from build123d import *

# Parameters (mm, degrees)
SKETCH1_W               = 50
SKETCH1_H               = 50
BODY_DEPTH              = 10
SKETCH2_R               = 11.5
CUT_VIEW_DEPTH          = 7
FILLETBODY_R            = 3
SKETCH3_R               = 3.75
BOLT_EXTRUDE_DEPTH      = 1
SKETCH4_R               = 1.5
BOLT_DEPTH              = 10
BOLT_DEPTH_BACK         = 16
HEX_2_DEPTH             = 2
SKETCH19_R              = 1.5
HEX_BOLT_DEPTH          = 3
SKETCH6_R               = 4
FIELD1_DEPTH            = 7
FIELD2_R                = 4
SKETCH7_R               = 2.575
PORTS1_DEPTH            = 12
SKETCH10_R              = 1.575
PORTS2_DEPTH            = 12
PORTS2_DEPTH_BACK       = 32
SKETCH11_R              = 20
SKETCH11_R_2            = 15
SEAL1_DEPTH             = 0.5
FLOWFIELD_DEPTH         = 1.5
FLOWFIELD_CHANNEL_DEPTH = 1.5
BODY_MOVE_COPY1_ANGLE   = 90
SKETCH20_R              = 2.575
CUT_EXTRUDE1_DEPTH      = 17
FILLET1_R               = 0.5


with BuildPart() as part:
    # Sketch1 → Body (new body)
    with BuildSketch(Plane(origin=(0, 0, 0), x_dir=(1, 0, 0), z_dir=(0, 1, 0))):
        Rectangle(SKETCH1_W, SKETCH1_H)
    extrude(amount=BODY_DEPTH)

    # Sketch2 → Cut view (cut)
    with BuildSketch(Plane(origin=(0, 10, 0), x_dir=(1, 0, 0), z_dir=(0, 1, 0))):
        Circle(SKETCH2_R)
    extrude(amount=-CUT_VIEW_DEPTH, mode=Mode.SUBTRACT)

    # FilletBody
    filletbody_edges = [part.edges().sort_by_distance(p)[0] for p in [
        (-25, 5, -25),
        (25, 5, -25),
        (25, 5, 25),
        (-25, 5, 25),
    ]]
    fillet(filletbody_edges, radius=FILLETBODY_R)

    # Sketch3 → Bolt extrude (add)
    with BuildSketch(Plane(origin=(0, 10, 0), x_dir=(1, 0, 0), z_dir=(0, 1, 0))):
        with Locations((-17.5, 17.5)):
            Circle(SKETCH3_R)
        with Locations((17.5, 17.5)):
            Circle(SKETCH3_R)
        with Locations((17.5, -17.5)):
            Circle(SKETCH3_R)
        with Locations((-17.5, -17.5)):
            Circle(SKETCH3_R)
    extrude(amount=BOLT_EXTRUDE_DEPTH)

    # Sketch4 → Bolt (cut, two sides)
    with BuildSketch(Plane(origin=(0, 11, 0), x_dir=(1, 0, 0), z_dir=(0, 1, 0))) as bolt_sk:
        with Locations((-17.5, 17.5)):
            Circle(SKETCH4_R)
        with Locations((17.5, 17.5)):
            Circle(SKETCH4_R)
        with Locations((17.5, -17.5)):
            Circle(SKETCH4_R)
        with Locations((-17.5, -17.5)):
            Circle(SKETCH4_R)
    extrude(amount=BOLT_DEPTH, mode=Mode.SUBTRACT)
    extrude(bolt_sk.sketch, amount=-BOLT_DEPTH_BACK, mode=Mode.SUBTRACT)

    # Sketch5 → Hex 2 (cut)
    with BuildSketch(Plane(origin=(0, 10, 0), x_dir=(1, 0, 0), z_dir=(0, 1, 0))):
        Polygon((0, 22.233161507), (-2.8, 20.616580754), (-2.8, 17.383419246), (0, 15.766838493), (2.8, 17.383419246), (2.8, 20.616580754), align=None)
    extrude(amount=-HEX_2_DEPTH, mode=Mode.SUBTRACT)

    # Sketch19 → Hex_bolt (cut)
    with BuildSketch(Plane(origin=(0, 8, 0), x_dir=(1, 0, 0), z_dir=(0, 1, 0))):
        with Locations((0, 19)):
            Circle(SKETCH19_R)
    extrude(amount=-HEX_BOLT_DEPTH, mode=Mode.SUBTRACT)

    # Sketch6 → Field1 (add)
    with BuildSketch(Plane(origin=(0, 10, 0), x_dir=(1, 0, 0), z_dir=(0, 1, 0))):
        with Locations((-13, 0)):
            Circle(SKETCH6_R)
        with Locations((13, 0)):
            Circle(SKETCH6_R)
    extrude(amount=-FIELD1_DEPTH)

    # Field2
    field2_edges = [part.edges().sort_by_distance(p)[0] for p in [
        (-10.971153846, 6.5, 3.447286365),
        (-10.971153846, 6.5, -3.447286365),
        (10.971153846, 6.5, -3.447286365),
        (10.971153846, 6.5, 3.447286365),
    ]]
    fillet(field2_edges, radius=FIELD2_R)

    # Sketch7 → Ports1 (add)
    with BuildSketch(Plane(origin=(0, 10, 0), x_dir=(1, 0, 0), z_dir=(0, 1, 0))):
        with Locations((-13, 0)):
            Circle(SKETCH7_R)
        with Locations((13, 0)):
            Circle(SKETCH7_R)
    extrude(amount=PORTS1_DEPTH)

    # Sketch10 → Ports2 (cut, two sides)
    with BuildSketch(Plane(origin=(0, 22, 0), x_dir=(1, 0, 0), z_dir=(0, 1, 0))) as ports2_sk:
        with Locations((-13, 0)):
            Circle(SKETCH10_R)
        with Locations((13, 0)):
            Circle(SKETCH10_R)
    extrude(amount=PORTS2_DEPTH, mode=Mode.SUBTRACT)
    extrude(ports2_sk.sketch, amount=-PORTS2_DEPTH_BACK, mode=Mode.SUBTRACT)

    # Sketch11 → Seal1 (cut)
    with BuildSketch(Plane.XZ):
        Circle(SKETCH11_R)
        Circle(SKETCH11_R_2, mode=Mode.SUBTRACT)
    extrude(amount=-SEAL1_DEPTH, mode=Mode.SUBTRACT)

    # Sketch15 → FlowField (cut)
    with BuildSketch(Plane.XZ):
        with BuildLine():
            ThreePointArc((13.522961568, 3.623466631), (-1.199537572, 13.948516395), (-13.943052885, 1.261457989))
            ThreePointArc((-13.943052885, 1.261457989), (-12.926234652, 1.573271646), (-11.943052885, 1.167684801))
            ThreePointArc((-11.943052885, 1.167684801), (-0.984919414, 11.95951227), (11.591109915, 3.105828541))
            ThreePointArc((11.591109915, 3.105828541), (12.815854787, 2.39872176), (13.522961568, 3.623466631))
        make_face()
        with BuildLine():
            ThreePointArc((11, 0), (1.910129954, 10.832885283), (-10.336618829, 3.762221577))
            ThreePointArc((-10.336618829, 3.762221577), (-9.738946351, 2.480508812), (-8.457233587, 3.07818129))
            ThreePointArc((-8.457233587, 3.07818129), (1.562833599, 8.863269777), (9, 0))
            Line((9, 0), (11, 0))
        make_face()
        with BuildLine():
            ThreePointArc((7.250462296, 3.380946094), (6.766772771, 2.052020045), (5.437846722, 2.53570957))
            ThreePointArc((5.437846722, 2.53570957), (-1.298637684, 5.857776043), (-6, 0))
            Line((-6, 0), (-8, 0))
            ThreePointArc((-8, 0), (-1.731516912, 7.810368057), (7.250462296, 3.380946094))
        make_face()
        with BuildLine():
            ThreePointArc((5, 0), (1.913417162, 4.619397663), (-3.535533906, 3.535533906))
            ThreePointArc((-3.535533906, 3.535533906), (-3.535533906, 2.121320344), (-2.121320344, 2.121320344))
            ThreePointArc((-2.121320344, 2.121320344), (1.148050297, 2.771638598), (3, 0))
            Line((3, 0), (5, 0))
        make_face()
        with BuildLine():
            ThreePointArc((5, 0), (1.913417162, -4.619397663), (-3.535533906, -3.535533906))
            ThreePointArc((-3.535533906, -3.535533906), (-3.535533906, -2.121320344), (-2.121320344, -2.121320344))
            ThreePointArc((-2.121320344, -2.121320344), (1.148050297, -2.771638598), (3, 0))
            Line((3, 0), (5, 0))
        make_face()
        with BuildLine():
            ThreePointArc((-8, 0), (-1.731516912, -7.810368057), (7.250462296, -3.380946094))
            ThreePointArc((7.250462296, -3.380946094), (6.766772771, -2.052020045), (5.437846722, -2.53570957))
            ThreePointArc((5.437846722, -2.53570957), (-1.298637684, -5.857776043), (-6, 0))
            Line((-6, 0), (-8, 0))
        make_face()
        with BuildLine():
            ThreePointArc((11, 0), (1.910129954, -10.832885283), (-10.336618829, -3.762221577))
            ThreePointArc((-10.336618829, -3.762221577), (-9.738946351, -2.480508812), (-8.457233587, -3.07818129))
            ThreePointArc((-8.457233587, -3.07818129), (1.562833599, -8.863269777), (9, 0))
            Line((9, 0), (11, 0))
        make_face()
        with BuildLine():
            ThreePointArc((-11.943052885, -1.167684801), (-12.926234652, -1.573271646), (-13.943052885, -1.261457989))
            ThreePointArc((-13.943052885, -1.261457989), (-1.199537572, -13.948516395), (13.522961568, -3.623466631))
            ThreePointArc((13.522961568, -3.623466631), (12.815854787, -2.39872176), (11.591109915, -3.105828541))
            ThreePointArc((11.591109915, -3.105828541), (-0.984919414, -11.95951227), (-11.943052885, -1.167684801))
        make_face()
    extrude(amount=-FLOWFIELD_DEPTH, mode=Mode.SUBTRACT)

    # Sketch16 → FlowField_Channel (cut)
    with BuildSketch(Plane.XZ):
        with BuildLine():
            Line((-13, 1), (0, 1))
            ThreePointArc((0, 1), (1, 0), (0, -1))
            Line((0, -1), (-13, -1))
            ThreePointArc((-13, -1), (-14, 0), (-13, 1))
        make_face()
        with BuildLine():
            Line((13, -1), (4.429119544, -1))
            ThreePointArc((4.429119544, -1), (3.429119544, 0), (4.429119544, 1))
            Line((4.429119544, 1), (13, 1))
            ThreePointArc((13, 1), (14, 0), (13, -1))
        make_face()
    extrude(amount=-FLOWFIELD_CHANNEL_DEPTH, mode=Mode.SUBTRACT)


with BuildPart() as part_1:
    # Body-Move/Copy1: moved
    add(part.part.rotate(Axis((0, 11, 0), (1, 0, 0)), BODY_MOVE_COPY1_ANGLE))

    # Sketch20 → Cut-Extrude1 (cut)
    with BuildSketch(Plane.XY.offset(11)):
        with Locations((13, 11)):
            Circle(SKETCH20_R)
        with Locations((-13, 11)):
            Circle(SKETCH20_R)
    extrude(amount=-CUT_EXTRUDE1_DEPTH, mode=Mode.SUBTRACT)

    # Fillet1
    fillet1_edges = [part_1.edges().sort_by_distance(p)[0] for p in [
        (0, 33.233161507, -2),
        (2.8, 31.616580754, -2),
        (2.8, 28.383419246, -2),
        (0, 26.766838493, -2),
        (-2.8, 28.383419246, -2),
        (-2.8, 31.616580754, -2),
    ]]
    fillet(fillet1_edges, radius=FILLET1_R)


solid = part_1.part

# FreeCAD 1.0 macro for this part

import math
import FreeCAD as App
import Part
import Sketcher
Q = App.Units.Quantity


def edges_at(feature, points):
    """Names of the edges that pass closest to the given points."""
    edges = feature.Shape.Edges
    near = lambda p: min(range(len(edges)), key=lambda i: edges[i].distToShape(Part.Vertex(*p))[0])
    return sorted({f"Edge{near(p) + 1}" for p in points})

doc = App.newDocument("Part")
body = doc.addObject("PartDesign::Body", "Body")

sketch1 = doc.addObject("Sketcher::SketchObject", "Sketch")
body.addObject(sketch1)
sketch1.AttachmentSupport = (doc.XZ_Plane, [""])
sketch1.MapMode = "FlatFace"
sketch1.addGeometry(Part.LineSegment(App.Vector(-25, -25, 0), App.Vector(-25, 25, 0)), False)
sketch1.addGeometry(Part.LineSegment(App.Vector(-25, 25, 0), App.Vector(25, 25, 0)), False)
sketch1.addGeometry(Part.LineSegment(App.Vector(25, 25, 0), App.Vector(25, -25, 0)), False)
sketch1.addGeometry(Part.LineSegment(App.Vector(25, -25, 0), App.Vector(-25, -25, 0)), False)
sketch1.addConstraint(Sketcher.Constraint("Coincident", 0, 2, 1, 1))
sketch1.addConstraint(Sketcher.Constraint("Coincident", 1, 2, 2, 1))
sketch1.addConstraint(Sketcher.Constraint("Coincident", 2, 2, 3, 1))
sketch1.addConstraint(Sketcher.Constraint("Coincident", 3, 2, 0, 1))
sketch1.addConstraint(Sketcher.Constraint("Vertical", 0))
sketch1.addConstraint(Sketcher.Constraint("Horizontal", 1))
sketch1.addConstraint(Sketcher.Constraint("Vertical", 2))
sketch1.addConstraint(Sketcher.Constraint("Horizontal", 3))
sketch1.addConstraint(Sketcher.Constraint("Symmetric", 0, 2, 2, 2, -1, 1))
sketch1.addConstraint(Sketcher.Constraint("Equal", 3, 0))
sketch1.addConstraint(Sketcher.Constraint("DistanceX", 1, 1, 1, 2, 50.0))
pad1 = doc.addObject("PartDesign::Pad", "Pad")
body.addObject(pad1)
pad1.Profile = sketch1
pad1.Length = 10
pad1.Reversed = True

sketch2 = doc.addObject("Sketcher::SketchObject", "Sketch001")
body.addObject(sketch2)
sketch2.AttachmentSupport = (doc.XZ_Plane, [""])
sketch2.MapMode = "FlatFace"
sketch2.AttachmentOffset = App.Placement(App.Vector(0, 0, -10), App.Rotation())
sketch2.addGeometry(Part.Circle(App.Vector(0, 0, 0), App.Vector(0, 0, 1), 12), False)
sketch2.addConstraint(Sketcher.Constraint("Coincident", 0, 3, -1, 1))
sketch2.addConstraint(Sketcher.Constraint("Diameter", 0, 23.0))
pocket1 = doc.addObject("PartDesign::Pocket", "Pocket")
body.addObject(pocket1)
pocket1.Profile = sketch2
pocket1.Length = 7
pocket1.Reversed = True
doc.recompute()

fillet = doc.addObject("PartDesign::Fillet", "Fillet")
body.addObject(fillet)
fillet.Base = (pocket1, edges_at(pocket1, [
    (-25, 5, -25),
    (25, 5, -25),
    (25, 5, 25),
    (-25, 5, 25),
]))
fillet.Radius = 3

sketch3 = doc.addObject("Sketcher::SketchObject", "Sketch002")
body.addObject(sketch3)
sketch3.AttachmentSupport = (doc.XZ_Plane, [""])
sketch3.MapMode = "FlatFace"
sketch3.AttachmentOffset = App.Placement(App.Vector(0, 0, -10), App.Rotation())
sketch3.addGeometry(Part.Circle(App.Vector(-17.5, -17.5, 0), App.Vector(0, 0, 1), 3.8), False)
sketch3.addGeometry(Part.Circle(App.Vector(17.5, -17.5, 0), App.Vector(0, 0, 1), 3.8), False)
sketch3.addGeometry(Part.Circle(App.Vector(17.5, 17.5, 0), App.Vector(0, 0, 1), 3.8), False)
sketch3.addGeometry(Part.Circle(App.Vector(-17.5, 17.5, 0), App.Vector(0, 0, 1), 3.8), False)
sketch3.addConstraint(Sketcher.Constraint("Equal", 0, 1))
sketch3.addConstraint(Sketcher.Constraint("Equal", 1, 2))
sketch3.addConstraint(Sketcher.Constraint("Equal", 2, 3))
sketch3.addConstraint(Sketcher.Constraint("Symmetric", 0, 3, 2, 3, -1, 1))
sketch3.addConstraint(Sketcher.Constraint("Symmetric", 1, 3, 3, 3, -1, 1))
sketch3.addConstraint(Sketcher.Constraint("Symmetric", 0, 3, 1, 3, -2))
sketch3.addConstraint(Sketcher.Constraint("Diameter", 0, 7.5))
sketch3.addConstraint(Sketcher.Constraint("DistanceX", 0, 3, 1, 3, 35.0))
sketch3.addConstraint(Sketcher.Constraint("DistanceY", 1, 3, 2, 3, 35.0))
pad2 = doc.addObject("PartDesign::Pad", "Pad001")
body.addObject(pad2)
pad2.Profile = sketch3
pad2.Length = 1
pad2.Reversed = True

sketch4 = doc.addObject("Sketcher::SketchObject", "Sketch003")
body.addObject(sketch4)
sketch4.AttachmentSupport = (doc.XZ_Plane, [""])
sketch4.MapMode = "FlatFace"
sketch4.AttachmentOffset = App.Placement(App.Vector(0, 0, -11), App.Rotation())
sketch4.addGeometry(Part.Circle(App.Vector(-17.5, -17.5, 0), App.Vector(0, 0, 1), 1.5), False)
sketch4.addGeometry(Part.Circle(App.Vector(17.5, -17.5, 0), App.Vector(0, 0, 1), 1.5), False)
sketch4.addGeometry(Part.Circle(App.Vector(17.5, 17.5, 0), App.Vector(0, 0, 1), 1.5), False)
sketch4.addGeometry(Part.Circle(App.Vector(-17.5, 17.5, 0), App.Vector(0, 0, 1), 1.5), False)
sketch4.addConstraint(Sketcher.Constraint("Equal", 0, 1))
sketch4.addConstraint(Sketcher.Constraint("Equal", 1, 2))
sketch4.addConstraint(Sketcher.Constraint("Equal", 2, 3))
sketch4.addConstraint(Sketcher.Constraint("Symmetric", 0, 3, 2, 3, -1, 1))
sketch4.addConstraint(Sketcher.Constraint("Symmetric", 1, 3, 3, 3, -1, 1))
sketch4.addConstraint(Sketcher.Constraint("Symmetric", 0, 3, 1, 3, -2))
sketch4.addConstraint(Sketcher.Constraint("Diameter", 0, 3.0))
sketch4.addConstraint(Sketcher.Constraint("DistanceX", 0, 3, 1, 3, 35.0))
sketch4.addConstraint(Sketcher.Constraint("DistanceY", 1, 3, 2, 3, 35.0))
pocket2 = doc.addObject("PartDesign::Pocket", "Pocket001")
body.addObject(pocket2)
pocket2.Profile = sketch4
pocket2.Type = "ThroughAll"
pocket2.Midplane = True

sketch5 = doc.addObject("Sketcher::SketchObject", "Sketch004")
body.addObject(sketch5)
sketch5.AttachmentSupport = (doc.XZ_Plane, [""])
sketch5.MapMode = "FlatFace"
sketch5.AttachmentOffset = App.Placement(App.Vector(0, 0, -10), App.Rotation())
sketch5.addGeometry(Part.LineSegment(App.Vector(0, -22.2, 0), App.Vector(-2.8, -20.6, 0)), False)
sketch5.addGeometry(Part.LineSegment(App.Vector(-2.8, -20.6, 0), App.Vector(-2.8, -17.4, 0)), False)
sketch5.addGeometry(Part.LineSegment(App.Vector(-2.8, -17.4, 0), App.Vector(0, -15.8, 0)), False)
sketch5.addGeometry(Part.LineSegment(App.Vector(0, -15.8, 0), App.Vector(2.8, -17.4, 0)), False)
sketch5.addGeometry(Part.LineSegment(App.Vector(2.8, -17.4, 0), App.Vector(2.8, -20.6, 0)), False)
sketch5.addGeometry(Part.LineSegment(App.Vector(2.8, -20.6, 0), App.Vector(0, -22.2, 0)), False)
sketch5.addConstraint(Sketcher.Constraint("Coincident", 0, 2, 1, 1))
sketch5.addConstraint(Sketcher.Constraint("Coincident", 1, 2, 2, 1))
sketch5.addConstraint(Sketcher.Constraint("Coincident", 2, 2, 3, 1))
sketch5.addConstraint(Sketcher.Constraint("Coincident", 3, 2, 4, 1))
sketch5.addConstraint(Sketcher.Constraint("Coincident", 4, 2, 5, 1))
sketch5.addConstraint(Sketcher.Constraint("Coincident", 5, 2, 0, 1))
sketch5.addConstraint(Sketcher.Constraint("Vertical", 1))
sketch5.addConstraint(Sketcher.Constraint("Vertical", 4))
sketch5.addConstraint(Sketcher.Constraint("Symmetric", 1, 2, 3, 2, -2))
sketch5.addConstraint(Sketcher.Constraint("PointOnObject", 2, 2, -2))
sketch5.addConstraint(Sketcher.Constraint("PointOnObject", 5, 2, -2))
sketch5.addConstraint(Sketcher.Constraint("Parallel", 0, 3))
sketch5.addConstraint(Sketcher.Constraint("Parallel", 2, 5))
sketch5.addConstraint(Sketcher.Constraint("Angle", 0, Q("150 deg")))
sketch5.addConstraint(Sketcher.Constraint("DistanceX", 0, 2, -1, 1, 2.8))
sketch5.addConstraint(Sketcher.Constraint("DistanceY", 1, 1, 1, 2, 3.233162))
sketch5.addConstraint(Sketcher.Constraint("DistanceY", 0, 2, -1, 1, 20.616581))
pocket3 = doc.addObject("PartDesign::Pocket", "Pocket002")
body.addObject(pocket3)
pocket3.Profile = sketch5
pocket3.Length = 2
pocket3.Reversed = True

sketch6 = doc.addObject("Sketcher::SketchObject", "Sketch005")
body.addObject(sketch6)
sketch6.AttachmentSupport = (doc.XZ_Plane, [""])
sketch6.MapMode = "FlatFace"
sketch6.AttachmentOffset = App.Placement(App.Vector(0, 0, -8), App.Rotation())
sketch6.addGeometry(Part.Circle(App.Vector(0, -19, 0), App.Vector(0, 0, 1), 1.5), False)
sketch6.addConstraint(Sketcher.Constraint("PointOnObject", 0, 3, -2))
sketch6.addConstraint(Sketcher.Constraint("Diameter", 0, 3.0))
sketch6.addConstraint(Sketcher.Constraint("DistanceY", 0, 3, -1, 1, 19.0))
pocket4 = doc.addObject("PartDesign::Pocket", "Pocket003")
body.addObject(pocket4)
pocket4.Profile = sketch6
pocket4.Length = 3
pocket4.Reversed = True

sketch7 = doc.addObject("Sketcher::SketchObject", "Sketch006")
body.addObject(sketch7)
sketch7.AttachmentSupport = (doc.XZ_Plane, [""])
sketch7.MapMode = "FlatFace"
sketch7.AttachmentOffset = App.Placement(App.Vector(0, 0, -10), App.Rotation())
sketch7.addGeometry(Part.Circle(App.Vector(-13, 0, 0), App.Vector(0, 0, 1), 4), False)
sketch7.addGeometry(Part.Circle(App.Vector(13, 0, 0), App.Vector(0, 0, 1), 4), False)
sketch7.addConstraint(Sketcher.Constraint("Equal", 0, 1))
sketch7.addConstraint(Sketcher.Constraint("Symmetric", 0, 3, 1, 3, -1, 1))
sketch7.addConstraint(Sketcher.Constraint("PointOnObject", 0, 3, -1))
sketch7.addConstraint(Sketcher.Constraint("Diameter", 0, 8.0))
sketch7.addConstraint(Sketcher.Constraint("DistanceX", 0, 3, -1, 1, 13.0))
pad3 = doc.addObject("PartDesign::Pad", "Pad002")
body.addObject(pad3)
pad3.Profile = sketch7
pad3.Length = 7
doc.recompute()

fillet2 = doc.addObject("PartDesign::Fillet", "Fillet001")
body.addObject(fillet2)
fillet2.Base = (pad3, edges_at(pad3, [
    (-10.971, 6.5, 3.447),
    (-10.971, 6.5, -3.447),
    (10.971, 6.5, -3.447),
    (10.971, 6.5, 3.447),
]))
fillet2.Radius = 4

sketch8 = doc.addObject("Sketcher::SketchObject", "Sketch007")
body.addObject(sketch8)
sketch8.AttachmentSupport = (doc.XZ_Plane, [""])
sketch8.MapMode = "FlatFace"
sketch8.AttachmentOffset = App.Placement(App.Vector(0, 0, -10), App.Rotation())
sketch8.addGeometry(Part.Circle(App.Vector(-13, 0, 0), App.Vector(0, 0, 1), 2.6), False)
sketch8.addGeometry(Part.Circle(App.Vector(13, 0, 0), App.Vector(0, 0, 1), 2.6), False)
sketch8.addConstraint(Sketcher.Constraint("Equal", 0, 1))
sketch8.addConstraint(Sketcher.Constraint("Symmetric", 0, 3, 1, 3, -1, 1))
sketch8.addConstraint(Sketcher.Constraint("PointOnObject", 0, 3, -1))
sketch8.addConstraint(Sketcher.Constraint("Diameter", 0, 5.15))
sketch8.addConstraint(Sketcher.Constraint("DistanceX", 0, 3, -1, 1, 13.0))
pad4 = doc.addObject("PartDesign::Pad", "Pad003")
body.addObject(pad4)
pad4.Profile = sketch8
pad4.Length = 12
pad4.Reversed = True

sketch9 = doc.addObject("Sketcher::SketchObject", "Sketch008")
body.addObject(sketch9)
sketch9.AttachmentSupport = (doc.XZ_Plane, [""])
sketch9.MapMode = "FlatFace"
sketch9.AttachmentOffset = App.Placement(App.Vector(0, 0, -22), App.Rotation())
sketch9.addGeometry(Part.Circle(App.Vector(-13, 0, 0), App.Vector(0, 0, 1), 1.6), False)
sketch9.addGeometry(Part.Circle(App.Vector(13, 0, 0), App.Vector(0, 0, 1), 1.6), False)
sketch9.addConstraint(Sketcher.Constraint("Equal", 0, 1))
sketch9.addConstraint(Sketcher.Constraint("Symmetric", 0, 3, 1, 3, -1, 1))
sketch9.addConstraint(Sketcher.Constraint("PointOnObject", 0, 3, -1))
sketch9.addConstraint(Sketcher.Constraint("Diameter", 0, 3.15))
sketch9.addConstraint(Sketcher.Constraint("DistanceX", 0, 3, -1, 1, 13.0))
pocket5 = doc.addObject("PartDesign::Pocket", "Pocket004")
body.addObject(pocket5)
pocket5.Profile = sketch9
pocket5.Type = "ThroughAll"
pocket5.Midplane = True

sketch10 = doc.addObject("Sketcher::SketchObject", "Sketch009")
body.addObject(sketch10)
sketch10.AttachmentSupport = (doc.XZ_Plane, [""])
sketch10.MapMode = "FlatFace"
sketch10.addGeometry(Part.Circle(App.Vector(0, 0, 0), App.Vector(0, 0, 1), 20), False)
sketch10.addGeometry(Part.Circle(App.Vector(0, 0, 0), App.Vector(0, 0, 1), 15), False)
sketch10.addConstraint(Sketcher.Constraint("Coincident", 0, 3, -1, 1))
sketch10.addConstraint(Sketcher.Constraint("Coincident", 1, 3, -1, 1))
sketch10.addConstraint(Sketcher.Constraint("Diameter", 0, 40.0))
sketch10.addConstraint(Sketcher.Constraint("Diameter", 1, 30.0))
pocket6 = doc.addObject("PartDesign::Pocket", "Pocket005")
body.addObject(pocket6)
pocket6.Profile = sketch10
pocket6.Length = 0.5

sketch11 = doc.addObject("Sketcher::SketchObject", "Sketch010")
body.addObject(sketch11)
sketch11.AttachmentSupport = (doc.XZ_Plane, [""])
sketch11.MapMode = "FlatFace"
sketch11.addGeometry(Part.ArcOfCircle(Part.Circle(App.Vector(0, 0, 0), App.Vector(0, 0, 1), 14), math.radians(15), math.radians(175)), False)
sketch11.addGeometry(Part.ArcOfCircle(Part.Circle(App.Vector(-13, 0, 0), App.Vector(0, 0, 1), 1.6), math.radians(48), math.radians(127)), False)
sketch11.addGeometry(Part.ArcOfCircle(Part.Circle(App.Vector(0, 0, 0), App.Vector(0, 0, 1), 12), math.radians(15), math.radians(174)), False)
sketch11.addGeometry(Part.ArcOfCircle(Part.Circle(App.Vector(12.6, 3.4, 0), App.Vector(0, 0, 1), 1), math.radians(-165), math.radians(15)), False)
sketch11.addGeometry(Part.ArcOfCircle(Part.Circle(App.Vector(0, 0, 0), App.Vector(0, 0, 1), 11), math.radians(0), math.radians(160)), False)
sketch11.addGeometry(Part.ArcOfCircle(Part.Circle(App.Vector(-9.4, 3.4, 0), App.Vector(0, 0, 1), 1), math.radians(160), math.radians(340)), False)
sketch11.addGeometry(Part.ArcOfCircle(Part.Circle(App.Vector(0, 0, 0), App.Vector(0, 0, 1), 9), math.radians(0), math.radians(160)), False)
sketch11.addGeometry(Part.ArcOfCircle(Part.Circle(App.Vector(0, 0, 0), App.Vector(0, 0, 1), 9), math.radians(-160), math.radians(0)), False)
sketch11.addGeometry(Part.ArcOfCircle(Part.Circle(App.Vector(-9.4, -3.4, 0), App.Vector(0, 0, 1), 1), math.radians(20), math.radians(200)), False)
sketch11.addGeometry(Part.ArcOfCircle(Part.Circle(App.Vector(0, 0, 0), App.Vector(0, 0, 1), 11), math.radians(-160), math.radians(0)), False)
sketch11.addGeometry(Part.ArcOfCircle(Part.Circle(App.Vector(6.3, 3, 0), App.Vector(0, 0, 1), 1), math.radians(-155), math.radians(25)), False)
sketch11.addGeometry(Part.ArcOfCircle(Part.Circle(App.Vector(0, 0, 0), App.Vector(0, 0, 1), 8), math.radians(25), math.radians(180)), False)
sketch11.addGeometry(Part.ArcOfCircle(Part.Circle(App.Vector(0, 0, 0), App.Vector(0, 0, 1), 8), math.radians(180), math.radians(335)), False)
sketch11.addGeometry(Part.ArcOfCircle(Part.Circle(App.Vector(6.3, -3, 0), App.Vector(0, 0, 1), 1), math.radians(-25), math.radians(155)), False)
sketch11.addGeometry(Part.ArcOfCircle(Part.Circle(App.Vector(0, 0, 0), App.Vector(0, 0, 1), 6), math.radians(180), math.radians(335)), False)
sketch11.addGeometry(Part.ArcOfCircle(Part.Circle(App.Vector(0, 0, 0), App.Vector(0, 0, 1), 6), math.radians(25), math.radians(180)), False)
sketch11.addGeometry(Part.ArcOfCircle(Part.Circle(App.Vector(0, 0, 0), App.Vector(0, 0, 1), 5), math.radians(0), math.radians(135)), False)
sketch11.addGeometry(Part.ArcOfCircle(Part.Circle(App.Vector(-2.8, 2.8, 0), App.Vector(0, 0, 1), 1), math.radians(135), math.radians(315)), False)
sketch11.addGeometry(Part.ArcOfCircle(Part.Circle(App.Vector(0, 0, 0), App.Vector(0, 0, 1), 3), math.radians(0), math.radians(135)), False)
sketch11.addGeometry(Part.ArcOfCircle(Part.Circle(App.Vector(0, 0, 0), App.Vector(0, 0, 1), 3), math.radians(-135), math.radians(0)), False)
sketch11.addGeometry(Part.ArcOfCircle(Part.Circle(App.Vector(-2.8, -2.8, 0), App.Vector(0, 0, 1), 1), math.radians(45), math.radians(225)), False)
sketch11.addGeometry(Part.ArcOfCircle(Part.Circle(App.Vector(0, 0, 0), App.Vector(0, 0, 1), 5), math.radians(-135), math.radians(0)), False)
sketch11.addGeometry(Part.ArcOfCircle(Part.Circle(App.Vector(-13, 0, 0), App.Vector(0, 0, 1), 1.6), math.radians(-127), math.radians(-48)), False)
sketch11.addGeometry(Part.ArcOfCircle(Part.Circle(App.Vector(0, 0, 0), App.Vector(0, 0, 1), 14), math.radians(-175), math.radians(-15)), False)
sketch11.addGeometry(Part.ArcOfCircle(Part.Circle(App.Vector(12.6, -3.4, 0), App.Vector(0, 0, 1), 1), math.radians(-15), math.radians(165)), False)
sketch11.addGeometry(Part.ArcOfCircle(Part.Circle(App.Vector(0, 0, 0), App.Vector(0, 0, 1), 12), math.radians(-174), math.radians(-15)), False)
sketch11.addConstraint(Sketcher.Constraint("Coincident", 0, 2, 1, 2))
sketch11.addConstraint(Sketcher.Constraint("Coincident", 1, 1, 2, 2))
sketch11.addConstraint(Sketcher.Constraint("Tangent", 2, 1, 3, 1))
sketch11.addConstraint(Sketcher.Constraint("Tangent", 3, 2, 0, 1))
sketch11.addConstraint(Sketcher.Constraint("Tangent", 4, 2, 5, 1))
sketch11.addConstraint(Sketcher.Constraint("Tangent", 5, 2, 6, 2))
sketch11.addConstraint(Sketcher.Constraint("Tangent", 6, 1, 7, 2))
sketch11.addConstraint(Sketcher.Constraint("Tangent", 7, 1, 8, 1))
sketch11.addConstraint(Sketcher.Constraint("Tangent", 8, 2, 9, 1))
sketch11.addConstraint(Sketcher.Constraint("Tangent", 9, 2, 4, 1))
sketch11.addConstraint(Sketcher.Constraint("Tangent", 10, 2, 11, 1))
sketch11.addConstraint(Sketcher.Constraint("Tangent", 11, 2, 12, 1))
sketch11.addConstraint(Sketcher.Constraint("Tangent", 12, 2, 13, 1))
sketch11.addConstraint(Sketcher.Constraint("Tangent", 13, 2, 14, 2))
sketch11.addConstraint(Sketcher.Constraint("Tangent", 14, 1, 15, 2))
sketch11.addConstraint(Sketcher.Constraint("Tangent", 15, 1, 10, 1))
sketch11.addConstraint(Sketcher.Constraint("Tangent", 16, 2, 17, 1))
sketch11.addConstraint(Sketcher.Constraint("Tangent", 17, 2, 18, 2))
sketch11.addConstraint(Sketcher.Constraint("Tangent", 18, 1, 19, 2))
sketch11.addConstraint(Sketcher.Constraint("Tangent", 19, 1, 20, 1))
sketch11.addConstraint(Sketcher.Constraint("Tangent", 20, 2, 21, 1))
sketch11.addConstraint(Sketcher.Constraint("Tangent", 21, 2, 16, 1))
sketch11.addConstraint(Sketcher.Constraint("Coincident", 22, 1, 23, 1))
sketch11.addConstraint(Sketcher.Constraint("Tangent", 23, 2, 24, 1))
sketch11.addConstraint(Sketcher.Constraint("Tangent", 24, 2, 25, 2))
sketch11.addConstraint(Sketcher.Constraint("Coincident", 25, 1, 22, 2))
sketch11.addConstraint(Sketcher.Constraint("Coincident", 0, 3, -1, 1))
sketch11.addConstraint(Sketcher.Constraint("Coincident", 2, 3, -1, 1))
sketch11.addConstraint(Sketcher.Constraint("Coincident", 4, 3, -1, 1))
sketch11.addConstraint(Sketcher.Constraint("Coincident", 6, 3, -1, 1))
sketch11.addConstraint(Sketcher.Constraint("Coincident", 11, 3, -1, 1))
sketch11.addConstraint(Sketcher.Constraint("Coincident", 14, 3, -1, 1))
sketch11.addConstraint(Sketcher.Constraint("Coincident", 16, 3, -1, 1))
sketch11.addConstraint(Sketcher.Constraint("Coincident", 18, 3, -1, 1))
sketch11.addConstraint(Sketcher.Constraint("Coincident", 23, 3, -1, 1))
sketch11.addConstraint(Sketcher.Constraint("Coincident", 25, 3, -1, 1))
sketch11.addConstraint(Sketcher.Constraint("Coincident", 22, 3, 1, 3))
sketch11.addConstraint(Sketcher.Constraint("Equal", 3, 5))
sketch11.addConstraint(Sketcher.Constraint("Equal", 6, 7))
sketch11.addConstraint(Sketcher.Constraint("Equal", 5, 8))
sketch11.addConstraint(Sketcher.Constraint("Equal", 8, 10))
sketch11.addConstraint(Sketcher.Constraint("Equal", 11, 12))
sketch11.addConstraint(Sketcher.Constraint("Equal", 10, 13))
sketch11.addConstraint(Sketcher.Constraint("Equal", 13, 17))
sketch11.addConstraint(Sketcher.Constraint("Equal", 18, 19))
sketch11.addConstraint(Sketcher.Constraint("Equal", 17, 20))
sketch11.addConstraint(Sketcher.Constraint("Equal", 1, 22))
sketch11.addConstraint(Sketcher.Constraint("Equal", 0, 23))
sketch11.addConstraint(Sketcher.Constraint("Equal", 20, 24))
sketch11.addConstraint(Sketcher.Constraint("PointOnObject", 1, 3, -1))
sketch11.addConstraint(Sketcher.Constraint("PointOnObject", 6, 1, -1))
sketch11.addConstraint(Sketcher.Constraint("PointOnObject", 9, 2, -1))
sketch11.addConstraint(Sketcher.Constraint("PointOnObject", 11, 2, -1))
sketch11.addConstraint(Sketcher.Constraint("PointOnObject", 14, 1, -1))
sketch11.addConstraint(Sketcher.Constraint("PointOnObject", 18, 1, -1))
sketch11.addConstraint(Sketcher.Constraint("PointOnObject", 21, 2, -1))
sketch11.addConstraint(Sketcher.Constraint("Vertical", 5, 3, 8, 3))
sketch11.addConstraint(Sketcher.Constraint("Vertical", 10, 3, 13, 3))
sketch11.addConstraint(Sketcher.Constraint("Vertical", 17, 3, 20, 3))
sketch11.addConstraint(Sketcher.Constraint("Vertical", 3, 3, 24, 3))
sketch11.addConstraint(Sketcher.Constraint("Radius", 0, 14.0))
sketch11.addConstraint(Sketcher.Constraint("Radius", 2, 12.0))
sketch11.addConstraint(Sketcher.Constraint("Radius", 4, 11.0))
sketch11.addConstraint(Sketcher.Constraint("Radius", 11, 8.0))
sketch11.addConstraint(Sketcher.Constraint("Radius", 16, 5.0))
sketch11.addConstraint(Sketcher.Constraint("DistanceX", 1, 3, -1, 1, 13.0))
sketch11.addConstraint(Sketcher.Constraint("Radius", 1, 1.575))
sketch11.addConstraint(Sketcher.Constraint("DistanceY", -1, 1, 5, 3, 3.420201))
sketch11.addConstraint(Sketcher.Constraint("DistanceY", 10, 3, 2, 1, 0.147501))
sketch11.addConstraint(Sketcher.Constraint("DistanceY", 3, 3, 10, 2, 0.016299))
sketch11.addConstraint(Sketcher.Constraint("DistanceX", 5, 2, 16, 2, 4.9217))
pocket7 = doc.addObject("PartDesign::Pocket", "Pocket006")
body.addObject(pocket7)
pocket7.Profile = sketch11
pocket7.Length = 1.5

sketch12 = doc.addObject("Sketcher::SketchObject", "Sketch011")
body.addObject(sketch12)
sketch12.AttachmentSupport = (doc.XZ_Plane, [""])
sketch12.MapMode = "FlatFace"
sketch12.addGeometry(Part.LineSegment(App.Vector(0, 1, 0), App.Vector(-13, 1, 0)), False)
sketch12.addGeometry(Part.ArcOfCircle(Part.Circle(App.Vector(-13, 0, 0), App.Vector(0, 0, 1), 1), math.radians(90), math.radians(270)), False)
sketch12.addGeometry(Part.LineSegment(App.Vector(-13, -1, 0), App.Vector(0, -1, 0)), False)
sketch12.addGeometry(Part.ArcOfCircle(Part.Circle(App.Vector(0, 0, 0), App.Vector(0, 0, 1), 1), math.radians(-90), math.radians(90)), False)
sketch12.addGeometry(Part.LineSegment(App.Vector(4.4, -1, 0), App.Vector(13, -1, 0)), False)
sketch12.addGeometry(Part.ArcOfCircle(Part.Circle(App.Vector(13, 0, 0), App.Vector(0, 0, 1), 1), math.radians(-90), math.radians(90)), False)
sketch12.addGeometry(Part.LineSegment(App.Vector(13, 1, 0), App.Vector(4.4, 1, 0)), False)
sketch12.addGeometry(Part.ArcOfCircle(Part.Circle(App.Vector(4.4, 0, 0), App.Vector(0, 0, 1), 1), math.radians(90), math.radians(270)), False)
sketch12.addConstraint(Sketcher.Constraint("Tangent", 0, 2, 1, 1))
sketch12.addConstraint(Sketcher.Constraint("Tangent", 1, 2, 2, 1))
sketch12.addConstraint(Sketcher.Constraint("Tangent", 2, 2, 3, 1))
sketch12.addConstraint(Sketcher.Constraint("Tangent", 3, 2, 0, 1))
sketch12.addConstraint(Sketcher.Constraint("Tangent", 4, 2, 5, 1))
sketch12.addConstraint(Sketcher.Constraint("Tangent", 5, 2, 6, 1))
sketch12.addConstraint(Sketcher.Constraint("Tangent", 6, 2, 7, 1))
sketch12.addConstraint(Sketcher.Constraint("Tangent", 7, 2, 4, 1))
sketch12.addConstraint(Sketcher.Constraint("Horizontal", 0))
sketch12.addConstraint(Sketcher.Constraint("Horizontal", 2))
sketch12.addConstraint(Sketcher.Constraint("Horizontal", 4))
sketch12.addConstraint(Sketcher.Constraint("Horizontal", 6))
sketch12.addConstraint(Sketcher.Constraint("Coincident", 3, 3, -1, 1))
sketch12.addConstraint(Sketcher.Constraint("Equal", 3, 5))
sketch12.addConstraint(Sketcher.Constraint("Symmetric", 1, 3, 5, 3, -1, 1))
sketch12.addConstraint(Sketcher.Constraint("Radius", 1, 1.0))
sketch12.addConstraint(Sketcher.Constraint("DistanceX", 0, 2, 0, 1, 13.0))
sketch12.addConstraint(Sketcher.Constraint("DistanceX", 4, 1, 4, 2, 8.57088))
pocket8 = doc.addObject("PartDesign::Pocket", "Pocket007")
body.addObject(pocket8)
pocket8.Profile = sketch12
pocket8.Length = 1.5
body2 = doc.addObject("PartDesign::Body", "Body001")
doc.recompute()

body.Placement = App.Placement(App.Vector(0, 11, -11), App.Rotation(App.Vector(1, 0, 0), 90))
boolean = doc.addObject("PartDesign::Boolean", "Boolean")
body2.addObject(boolean)
boolean.Type = "Fuse"
boolean.addObjects([body])

sketch13 = doc.addObject("Sketcher::SketchObject", "Sketch012")
body2.addObject(sketch13)
sketch13.AttachmentSupport = (doc.getObject("XY_Plane001"), [""])
sketch13.MapMode = "FlatFace"
sketch13.AttachmentOffset = App.Placement(App.Vector(0, 0, 11), App.Rotation())
sketch13.addGeometry(Part.Circle(App.Vector(13, 11, 0), App.Vector(0, 0, 1), 2.6), False)
sketch13.addGeometry(Part.Circle(App.Vector(-13, 11, 0), App.Vector(0, 0, 1), 2.6), False)
sketch13.addConstraint(Sketcher.Constraint("Equal", 0, 1))
sketch13.addConstraint(Sketcher.Constraint("Symmetric", 0, 3, 1, 3, -2))
sketch13.addConstraint(Sketcher.Constraint("Diameter", 0, 5.15))
sketch13.addConstraint(Sketcher.Constraint("DistanceX", -1, 1, 0, 3, 13.0))
sketch13.addConstraint(Sketcher.Constraint("DistanceY", -1, 1, 0, 3, 11.0))
pocket9 = doc.addObject("PartDesign::Pocket", "Pocket008")
body2.addObject(pocket9)
pocket9.Profile = sketch13
pocket9.Length = 17
doc.recompute()

fillet3 = doc.addObject("PartDesign::Fillet", "Fillet002")
body2.addObject(fillet3)
fillet3.Base = (pocket9, edges_at(pocket9, [
    (0, 33.233, -2),
    (2.8, 31.617, -2),
    (2.8, 28.383, -2),
    (0, 26.767, -2),
    (-2.8, 28.383, -2),
    (-2.8, 31.617, -2),
]))
fillet3.Radius = 0.5

doc.recompute()
